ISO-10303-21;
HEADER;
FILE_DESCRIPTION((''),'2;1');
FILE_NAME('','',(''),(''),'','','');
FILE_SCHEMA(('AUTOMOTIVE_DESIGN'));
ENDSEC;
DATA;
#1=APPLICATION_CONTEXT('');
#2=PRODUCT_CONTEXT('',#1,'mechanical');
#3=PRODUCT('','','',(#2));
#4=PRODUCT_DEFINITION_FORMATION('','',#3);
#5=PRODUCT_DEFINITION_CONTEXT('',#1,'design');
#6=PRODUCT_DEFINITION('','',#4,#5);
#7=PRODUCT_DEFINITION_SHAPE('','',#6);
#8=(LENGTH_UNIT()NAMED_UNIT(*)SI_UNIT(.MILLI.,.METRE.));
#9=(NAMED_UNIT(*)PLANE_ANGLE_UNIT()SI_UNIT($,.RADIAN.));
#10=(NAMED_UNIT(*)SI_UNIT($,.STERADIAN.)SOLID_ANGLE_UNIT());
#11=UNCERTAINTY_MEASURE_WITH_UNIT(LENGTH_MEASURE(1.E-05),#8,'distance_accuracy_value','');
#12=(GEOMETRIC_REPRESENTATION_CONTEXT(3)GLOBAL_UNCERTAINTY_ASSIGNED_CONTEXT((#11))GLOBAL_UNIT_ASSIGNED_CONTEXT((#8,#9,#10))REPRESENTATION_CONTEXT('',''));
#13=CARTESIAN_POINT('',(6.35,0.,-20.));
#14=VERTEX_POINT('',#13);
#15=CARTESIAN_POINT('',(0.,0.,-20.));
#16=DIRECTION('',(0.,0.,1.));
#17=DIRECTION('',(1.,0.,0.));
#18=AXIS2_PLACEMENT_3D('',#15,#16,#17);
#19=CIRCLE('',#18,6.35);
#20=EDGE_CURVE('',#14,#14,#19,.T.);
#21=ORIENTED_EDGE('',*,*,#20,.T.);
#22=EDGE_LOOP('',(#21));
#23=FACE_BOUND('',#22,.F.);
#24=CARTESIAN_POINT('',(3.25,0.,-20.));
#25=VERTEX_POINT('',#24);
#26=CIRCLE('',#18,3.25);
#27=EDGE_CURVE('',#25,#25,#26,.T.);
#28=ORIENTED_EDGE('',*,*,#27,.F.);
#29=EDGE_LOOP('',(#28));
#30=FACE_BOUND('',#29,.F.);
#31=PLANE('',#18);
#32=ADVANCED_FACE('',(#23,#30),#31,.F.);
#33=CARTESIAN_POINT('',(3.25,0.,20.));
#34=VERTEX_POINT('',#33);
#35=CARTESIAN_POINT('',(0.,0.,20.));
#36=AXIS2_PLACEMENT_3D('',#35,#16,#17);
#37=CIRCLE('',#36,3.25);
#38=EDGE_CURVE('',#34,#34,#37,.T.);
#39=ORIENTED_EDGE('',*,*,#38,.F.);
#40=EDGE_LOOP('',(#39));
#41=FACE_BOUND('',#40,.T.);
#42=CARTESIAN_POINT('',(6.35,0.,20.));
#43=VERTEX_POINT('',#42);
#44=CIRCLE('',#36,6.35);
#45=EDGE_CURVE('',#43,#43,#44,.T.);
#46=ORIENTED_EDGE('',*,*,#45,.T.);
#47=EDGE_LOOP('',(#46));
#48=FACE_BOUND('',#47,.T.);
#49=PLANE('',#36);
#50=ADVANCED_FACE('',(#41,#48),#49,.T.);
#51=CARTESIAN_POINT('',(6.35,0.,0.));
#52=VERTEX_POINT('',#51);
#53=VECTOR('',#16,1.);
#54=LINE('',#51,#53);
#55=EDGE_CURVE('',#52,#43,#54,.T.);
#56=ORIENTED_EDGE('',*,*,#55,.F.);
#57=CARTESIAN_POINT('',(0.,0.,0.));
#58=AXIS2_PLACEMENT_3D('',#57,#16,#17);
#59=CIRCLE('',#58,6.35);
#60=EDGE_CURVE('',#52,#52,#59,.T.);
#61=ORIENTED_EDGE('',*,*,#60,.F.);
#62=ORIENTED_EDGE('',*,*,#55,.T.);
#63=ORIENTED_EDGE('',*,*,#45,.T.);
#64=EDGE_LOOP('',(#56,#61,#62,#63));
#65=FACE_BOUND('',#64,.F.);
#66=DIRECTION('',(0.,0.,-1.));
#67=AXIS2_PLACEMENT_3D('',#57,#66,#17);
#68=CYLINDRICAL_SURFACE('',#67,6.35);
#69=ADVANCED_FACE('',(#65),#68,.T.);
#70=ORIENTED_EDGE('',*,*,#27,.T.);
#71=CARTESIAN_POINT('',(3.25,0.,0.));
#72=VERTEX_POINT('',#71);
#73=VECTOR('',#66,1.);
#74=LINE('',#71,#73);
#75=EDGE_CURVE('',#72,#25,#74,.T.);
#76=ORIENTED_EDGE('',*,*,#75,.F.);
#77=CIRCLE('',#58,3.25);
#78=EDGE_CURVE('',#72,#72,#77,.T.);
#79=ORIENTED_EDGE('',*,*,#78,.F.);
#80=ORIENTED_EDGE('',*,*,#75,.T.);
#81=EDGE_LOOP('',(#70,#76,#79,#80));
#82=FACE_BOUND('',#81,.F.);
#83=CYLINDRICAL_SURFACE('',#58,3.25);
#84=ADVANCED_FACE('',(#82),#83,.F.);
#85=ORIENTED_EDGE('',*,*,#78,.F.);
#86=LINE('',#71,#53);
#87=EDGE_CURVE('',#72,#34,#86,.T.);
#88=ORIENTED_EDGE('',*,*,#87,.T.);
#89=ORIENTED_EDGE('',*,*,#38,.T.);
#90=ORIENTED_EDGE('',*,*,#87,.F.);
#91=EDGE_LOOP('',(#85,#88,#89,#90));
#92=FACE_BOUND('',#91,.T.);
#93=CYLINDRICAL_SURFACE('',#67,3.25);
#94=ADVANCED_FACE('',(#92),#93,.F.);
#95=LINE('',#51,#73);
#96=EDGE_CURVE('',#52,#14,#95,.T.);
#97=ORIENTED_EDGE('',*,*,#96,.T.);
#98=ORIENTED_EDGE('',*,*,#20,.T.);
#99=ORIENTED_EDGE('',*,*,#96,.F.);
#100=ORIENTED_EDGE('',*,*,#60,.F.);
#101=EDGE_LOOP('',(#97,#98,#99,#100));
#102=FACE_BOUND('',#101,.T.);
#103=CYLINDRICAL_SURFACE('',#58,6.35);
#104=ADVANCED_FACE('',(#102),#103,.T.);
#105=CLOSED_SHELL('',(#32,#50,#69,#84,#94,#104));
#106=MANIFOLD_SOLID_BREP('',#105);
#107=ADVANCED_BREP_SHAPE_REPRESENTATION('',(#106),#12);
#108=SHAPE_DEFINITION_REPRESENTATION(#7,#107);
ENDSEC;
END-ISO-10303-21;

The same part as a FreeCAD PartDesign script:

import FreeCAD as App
import Part
import Sketcher

V = App.Vector
Q = App.Units.Quantity

doc = App.newDocument("Part")
body = doc.addObject("PartDesign::Body", "Body")

sketch1 = body.newObject("Sketcher::SketchObject", "Sketch")
sketch1.AttachmentSupport = (doc.getObject("XY_Plane"), [""])
sketch1.MapMode = "FlatFace"
sketch1.addGeometry([
    Part.Circle(V(0, 0, 0), V(0, 0, 1), 6.3),
    Part.Circle(V(0, 0, 0), V(0, 0, 1), 3.2),
], False)
sketch1.addConstraint([
    Sketcher.Constraint("Coincident", 0, 3, -1, 1),
    Sketcher.Constraint("Coincident", 1, 3, -1, 1),
    Sketcher.Constraint("Diameter", 0, Q("0.5 in")),
    Sketcher.Constraint("Diameter", 1, Q("0.2559 in")),
])
pad1 = body.newObject("PartDesign::Pad", "Pad")
pad1.Profile = sketch1
pad1.Length = Q("1.5748031 in")
pad1.Midplane = True

doc.recompute()
